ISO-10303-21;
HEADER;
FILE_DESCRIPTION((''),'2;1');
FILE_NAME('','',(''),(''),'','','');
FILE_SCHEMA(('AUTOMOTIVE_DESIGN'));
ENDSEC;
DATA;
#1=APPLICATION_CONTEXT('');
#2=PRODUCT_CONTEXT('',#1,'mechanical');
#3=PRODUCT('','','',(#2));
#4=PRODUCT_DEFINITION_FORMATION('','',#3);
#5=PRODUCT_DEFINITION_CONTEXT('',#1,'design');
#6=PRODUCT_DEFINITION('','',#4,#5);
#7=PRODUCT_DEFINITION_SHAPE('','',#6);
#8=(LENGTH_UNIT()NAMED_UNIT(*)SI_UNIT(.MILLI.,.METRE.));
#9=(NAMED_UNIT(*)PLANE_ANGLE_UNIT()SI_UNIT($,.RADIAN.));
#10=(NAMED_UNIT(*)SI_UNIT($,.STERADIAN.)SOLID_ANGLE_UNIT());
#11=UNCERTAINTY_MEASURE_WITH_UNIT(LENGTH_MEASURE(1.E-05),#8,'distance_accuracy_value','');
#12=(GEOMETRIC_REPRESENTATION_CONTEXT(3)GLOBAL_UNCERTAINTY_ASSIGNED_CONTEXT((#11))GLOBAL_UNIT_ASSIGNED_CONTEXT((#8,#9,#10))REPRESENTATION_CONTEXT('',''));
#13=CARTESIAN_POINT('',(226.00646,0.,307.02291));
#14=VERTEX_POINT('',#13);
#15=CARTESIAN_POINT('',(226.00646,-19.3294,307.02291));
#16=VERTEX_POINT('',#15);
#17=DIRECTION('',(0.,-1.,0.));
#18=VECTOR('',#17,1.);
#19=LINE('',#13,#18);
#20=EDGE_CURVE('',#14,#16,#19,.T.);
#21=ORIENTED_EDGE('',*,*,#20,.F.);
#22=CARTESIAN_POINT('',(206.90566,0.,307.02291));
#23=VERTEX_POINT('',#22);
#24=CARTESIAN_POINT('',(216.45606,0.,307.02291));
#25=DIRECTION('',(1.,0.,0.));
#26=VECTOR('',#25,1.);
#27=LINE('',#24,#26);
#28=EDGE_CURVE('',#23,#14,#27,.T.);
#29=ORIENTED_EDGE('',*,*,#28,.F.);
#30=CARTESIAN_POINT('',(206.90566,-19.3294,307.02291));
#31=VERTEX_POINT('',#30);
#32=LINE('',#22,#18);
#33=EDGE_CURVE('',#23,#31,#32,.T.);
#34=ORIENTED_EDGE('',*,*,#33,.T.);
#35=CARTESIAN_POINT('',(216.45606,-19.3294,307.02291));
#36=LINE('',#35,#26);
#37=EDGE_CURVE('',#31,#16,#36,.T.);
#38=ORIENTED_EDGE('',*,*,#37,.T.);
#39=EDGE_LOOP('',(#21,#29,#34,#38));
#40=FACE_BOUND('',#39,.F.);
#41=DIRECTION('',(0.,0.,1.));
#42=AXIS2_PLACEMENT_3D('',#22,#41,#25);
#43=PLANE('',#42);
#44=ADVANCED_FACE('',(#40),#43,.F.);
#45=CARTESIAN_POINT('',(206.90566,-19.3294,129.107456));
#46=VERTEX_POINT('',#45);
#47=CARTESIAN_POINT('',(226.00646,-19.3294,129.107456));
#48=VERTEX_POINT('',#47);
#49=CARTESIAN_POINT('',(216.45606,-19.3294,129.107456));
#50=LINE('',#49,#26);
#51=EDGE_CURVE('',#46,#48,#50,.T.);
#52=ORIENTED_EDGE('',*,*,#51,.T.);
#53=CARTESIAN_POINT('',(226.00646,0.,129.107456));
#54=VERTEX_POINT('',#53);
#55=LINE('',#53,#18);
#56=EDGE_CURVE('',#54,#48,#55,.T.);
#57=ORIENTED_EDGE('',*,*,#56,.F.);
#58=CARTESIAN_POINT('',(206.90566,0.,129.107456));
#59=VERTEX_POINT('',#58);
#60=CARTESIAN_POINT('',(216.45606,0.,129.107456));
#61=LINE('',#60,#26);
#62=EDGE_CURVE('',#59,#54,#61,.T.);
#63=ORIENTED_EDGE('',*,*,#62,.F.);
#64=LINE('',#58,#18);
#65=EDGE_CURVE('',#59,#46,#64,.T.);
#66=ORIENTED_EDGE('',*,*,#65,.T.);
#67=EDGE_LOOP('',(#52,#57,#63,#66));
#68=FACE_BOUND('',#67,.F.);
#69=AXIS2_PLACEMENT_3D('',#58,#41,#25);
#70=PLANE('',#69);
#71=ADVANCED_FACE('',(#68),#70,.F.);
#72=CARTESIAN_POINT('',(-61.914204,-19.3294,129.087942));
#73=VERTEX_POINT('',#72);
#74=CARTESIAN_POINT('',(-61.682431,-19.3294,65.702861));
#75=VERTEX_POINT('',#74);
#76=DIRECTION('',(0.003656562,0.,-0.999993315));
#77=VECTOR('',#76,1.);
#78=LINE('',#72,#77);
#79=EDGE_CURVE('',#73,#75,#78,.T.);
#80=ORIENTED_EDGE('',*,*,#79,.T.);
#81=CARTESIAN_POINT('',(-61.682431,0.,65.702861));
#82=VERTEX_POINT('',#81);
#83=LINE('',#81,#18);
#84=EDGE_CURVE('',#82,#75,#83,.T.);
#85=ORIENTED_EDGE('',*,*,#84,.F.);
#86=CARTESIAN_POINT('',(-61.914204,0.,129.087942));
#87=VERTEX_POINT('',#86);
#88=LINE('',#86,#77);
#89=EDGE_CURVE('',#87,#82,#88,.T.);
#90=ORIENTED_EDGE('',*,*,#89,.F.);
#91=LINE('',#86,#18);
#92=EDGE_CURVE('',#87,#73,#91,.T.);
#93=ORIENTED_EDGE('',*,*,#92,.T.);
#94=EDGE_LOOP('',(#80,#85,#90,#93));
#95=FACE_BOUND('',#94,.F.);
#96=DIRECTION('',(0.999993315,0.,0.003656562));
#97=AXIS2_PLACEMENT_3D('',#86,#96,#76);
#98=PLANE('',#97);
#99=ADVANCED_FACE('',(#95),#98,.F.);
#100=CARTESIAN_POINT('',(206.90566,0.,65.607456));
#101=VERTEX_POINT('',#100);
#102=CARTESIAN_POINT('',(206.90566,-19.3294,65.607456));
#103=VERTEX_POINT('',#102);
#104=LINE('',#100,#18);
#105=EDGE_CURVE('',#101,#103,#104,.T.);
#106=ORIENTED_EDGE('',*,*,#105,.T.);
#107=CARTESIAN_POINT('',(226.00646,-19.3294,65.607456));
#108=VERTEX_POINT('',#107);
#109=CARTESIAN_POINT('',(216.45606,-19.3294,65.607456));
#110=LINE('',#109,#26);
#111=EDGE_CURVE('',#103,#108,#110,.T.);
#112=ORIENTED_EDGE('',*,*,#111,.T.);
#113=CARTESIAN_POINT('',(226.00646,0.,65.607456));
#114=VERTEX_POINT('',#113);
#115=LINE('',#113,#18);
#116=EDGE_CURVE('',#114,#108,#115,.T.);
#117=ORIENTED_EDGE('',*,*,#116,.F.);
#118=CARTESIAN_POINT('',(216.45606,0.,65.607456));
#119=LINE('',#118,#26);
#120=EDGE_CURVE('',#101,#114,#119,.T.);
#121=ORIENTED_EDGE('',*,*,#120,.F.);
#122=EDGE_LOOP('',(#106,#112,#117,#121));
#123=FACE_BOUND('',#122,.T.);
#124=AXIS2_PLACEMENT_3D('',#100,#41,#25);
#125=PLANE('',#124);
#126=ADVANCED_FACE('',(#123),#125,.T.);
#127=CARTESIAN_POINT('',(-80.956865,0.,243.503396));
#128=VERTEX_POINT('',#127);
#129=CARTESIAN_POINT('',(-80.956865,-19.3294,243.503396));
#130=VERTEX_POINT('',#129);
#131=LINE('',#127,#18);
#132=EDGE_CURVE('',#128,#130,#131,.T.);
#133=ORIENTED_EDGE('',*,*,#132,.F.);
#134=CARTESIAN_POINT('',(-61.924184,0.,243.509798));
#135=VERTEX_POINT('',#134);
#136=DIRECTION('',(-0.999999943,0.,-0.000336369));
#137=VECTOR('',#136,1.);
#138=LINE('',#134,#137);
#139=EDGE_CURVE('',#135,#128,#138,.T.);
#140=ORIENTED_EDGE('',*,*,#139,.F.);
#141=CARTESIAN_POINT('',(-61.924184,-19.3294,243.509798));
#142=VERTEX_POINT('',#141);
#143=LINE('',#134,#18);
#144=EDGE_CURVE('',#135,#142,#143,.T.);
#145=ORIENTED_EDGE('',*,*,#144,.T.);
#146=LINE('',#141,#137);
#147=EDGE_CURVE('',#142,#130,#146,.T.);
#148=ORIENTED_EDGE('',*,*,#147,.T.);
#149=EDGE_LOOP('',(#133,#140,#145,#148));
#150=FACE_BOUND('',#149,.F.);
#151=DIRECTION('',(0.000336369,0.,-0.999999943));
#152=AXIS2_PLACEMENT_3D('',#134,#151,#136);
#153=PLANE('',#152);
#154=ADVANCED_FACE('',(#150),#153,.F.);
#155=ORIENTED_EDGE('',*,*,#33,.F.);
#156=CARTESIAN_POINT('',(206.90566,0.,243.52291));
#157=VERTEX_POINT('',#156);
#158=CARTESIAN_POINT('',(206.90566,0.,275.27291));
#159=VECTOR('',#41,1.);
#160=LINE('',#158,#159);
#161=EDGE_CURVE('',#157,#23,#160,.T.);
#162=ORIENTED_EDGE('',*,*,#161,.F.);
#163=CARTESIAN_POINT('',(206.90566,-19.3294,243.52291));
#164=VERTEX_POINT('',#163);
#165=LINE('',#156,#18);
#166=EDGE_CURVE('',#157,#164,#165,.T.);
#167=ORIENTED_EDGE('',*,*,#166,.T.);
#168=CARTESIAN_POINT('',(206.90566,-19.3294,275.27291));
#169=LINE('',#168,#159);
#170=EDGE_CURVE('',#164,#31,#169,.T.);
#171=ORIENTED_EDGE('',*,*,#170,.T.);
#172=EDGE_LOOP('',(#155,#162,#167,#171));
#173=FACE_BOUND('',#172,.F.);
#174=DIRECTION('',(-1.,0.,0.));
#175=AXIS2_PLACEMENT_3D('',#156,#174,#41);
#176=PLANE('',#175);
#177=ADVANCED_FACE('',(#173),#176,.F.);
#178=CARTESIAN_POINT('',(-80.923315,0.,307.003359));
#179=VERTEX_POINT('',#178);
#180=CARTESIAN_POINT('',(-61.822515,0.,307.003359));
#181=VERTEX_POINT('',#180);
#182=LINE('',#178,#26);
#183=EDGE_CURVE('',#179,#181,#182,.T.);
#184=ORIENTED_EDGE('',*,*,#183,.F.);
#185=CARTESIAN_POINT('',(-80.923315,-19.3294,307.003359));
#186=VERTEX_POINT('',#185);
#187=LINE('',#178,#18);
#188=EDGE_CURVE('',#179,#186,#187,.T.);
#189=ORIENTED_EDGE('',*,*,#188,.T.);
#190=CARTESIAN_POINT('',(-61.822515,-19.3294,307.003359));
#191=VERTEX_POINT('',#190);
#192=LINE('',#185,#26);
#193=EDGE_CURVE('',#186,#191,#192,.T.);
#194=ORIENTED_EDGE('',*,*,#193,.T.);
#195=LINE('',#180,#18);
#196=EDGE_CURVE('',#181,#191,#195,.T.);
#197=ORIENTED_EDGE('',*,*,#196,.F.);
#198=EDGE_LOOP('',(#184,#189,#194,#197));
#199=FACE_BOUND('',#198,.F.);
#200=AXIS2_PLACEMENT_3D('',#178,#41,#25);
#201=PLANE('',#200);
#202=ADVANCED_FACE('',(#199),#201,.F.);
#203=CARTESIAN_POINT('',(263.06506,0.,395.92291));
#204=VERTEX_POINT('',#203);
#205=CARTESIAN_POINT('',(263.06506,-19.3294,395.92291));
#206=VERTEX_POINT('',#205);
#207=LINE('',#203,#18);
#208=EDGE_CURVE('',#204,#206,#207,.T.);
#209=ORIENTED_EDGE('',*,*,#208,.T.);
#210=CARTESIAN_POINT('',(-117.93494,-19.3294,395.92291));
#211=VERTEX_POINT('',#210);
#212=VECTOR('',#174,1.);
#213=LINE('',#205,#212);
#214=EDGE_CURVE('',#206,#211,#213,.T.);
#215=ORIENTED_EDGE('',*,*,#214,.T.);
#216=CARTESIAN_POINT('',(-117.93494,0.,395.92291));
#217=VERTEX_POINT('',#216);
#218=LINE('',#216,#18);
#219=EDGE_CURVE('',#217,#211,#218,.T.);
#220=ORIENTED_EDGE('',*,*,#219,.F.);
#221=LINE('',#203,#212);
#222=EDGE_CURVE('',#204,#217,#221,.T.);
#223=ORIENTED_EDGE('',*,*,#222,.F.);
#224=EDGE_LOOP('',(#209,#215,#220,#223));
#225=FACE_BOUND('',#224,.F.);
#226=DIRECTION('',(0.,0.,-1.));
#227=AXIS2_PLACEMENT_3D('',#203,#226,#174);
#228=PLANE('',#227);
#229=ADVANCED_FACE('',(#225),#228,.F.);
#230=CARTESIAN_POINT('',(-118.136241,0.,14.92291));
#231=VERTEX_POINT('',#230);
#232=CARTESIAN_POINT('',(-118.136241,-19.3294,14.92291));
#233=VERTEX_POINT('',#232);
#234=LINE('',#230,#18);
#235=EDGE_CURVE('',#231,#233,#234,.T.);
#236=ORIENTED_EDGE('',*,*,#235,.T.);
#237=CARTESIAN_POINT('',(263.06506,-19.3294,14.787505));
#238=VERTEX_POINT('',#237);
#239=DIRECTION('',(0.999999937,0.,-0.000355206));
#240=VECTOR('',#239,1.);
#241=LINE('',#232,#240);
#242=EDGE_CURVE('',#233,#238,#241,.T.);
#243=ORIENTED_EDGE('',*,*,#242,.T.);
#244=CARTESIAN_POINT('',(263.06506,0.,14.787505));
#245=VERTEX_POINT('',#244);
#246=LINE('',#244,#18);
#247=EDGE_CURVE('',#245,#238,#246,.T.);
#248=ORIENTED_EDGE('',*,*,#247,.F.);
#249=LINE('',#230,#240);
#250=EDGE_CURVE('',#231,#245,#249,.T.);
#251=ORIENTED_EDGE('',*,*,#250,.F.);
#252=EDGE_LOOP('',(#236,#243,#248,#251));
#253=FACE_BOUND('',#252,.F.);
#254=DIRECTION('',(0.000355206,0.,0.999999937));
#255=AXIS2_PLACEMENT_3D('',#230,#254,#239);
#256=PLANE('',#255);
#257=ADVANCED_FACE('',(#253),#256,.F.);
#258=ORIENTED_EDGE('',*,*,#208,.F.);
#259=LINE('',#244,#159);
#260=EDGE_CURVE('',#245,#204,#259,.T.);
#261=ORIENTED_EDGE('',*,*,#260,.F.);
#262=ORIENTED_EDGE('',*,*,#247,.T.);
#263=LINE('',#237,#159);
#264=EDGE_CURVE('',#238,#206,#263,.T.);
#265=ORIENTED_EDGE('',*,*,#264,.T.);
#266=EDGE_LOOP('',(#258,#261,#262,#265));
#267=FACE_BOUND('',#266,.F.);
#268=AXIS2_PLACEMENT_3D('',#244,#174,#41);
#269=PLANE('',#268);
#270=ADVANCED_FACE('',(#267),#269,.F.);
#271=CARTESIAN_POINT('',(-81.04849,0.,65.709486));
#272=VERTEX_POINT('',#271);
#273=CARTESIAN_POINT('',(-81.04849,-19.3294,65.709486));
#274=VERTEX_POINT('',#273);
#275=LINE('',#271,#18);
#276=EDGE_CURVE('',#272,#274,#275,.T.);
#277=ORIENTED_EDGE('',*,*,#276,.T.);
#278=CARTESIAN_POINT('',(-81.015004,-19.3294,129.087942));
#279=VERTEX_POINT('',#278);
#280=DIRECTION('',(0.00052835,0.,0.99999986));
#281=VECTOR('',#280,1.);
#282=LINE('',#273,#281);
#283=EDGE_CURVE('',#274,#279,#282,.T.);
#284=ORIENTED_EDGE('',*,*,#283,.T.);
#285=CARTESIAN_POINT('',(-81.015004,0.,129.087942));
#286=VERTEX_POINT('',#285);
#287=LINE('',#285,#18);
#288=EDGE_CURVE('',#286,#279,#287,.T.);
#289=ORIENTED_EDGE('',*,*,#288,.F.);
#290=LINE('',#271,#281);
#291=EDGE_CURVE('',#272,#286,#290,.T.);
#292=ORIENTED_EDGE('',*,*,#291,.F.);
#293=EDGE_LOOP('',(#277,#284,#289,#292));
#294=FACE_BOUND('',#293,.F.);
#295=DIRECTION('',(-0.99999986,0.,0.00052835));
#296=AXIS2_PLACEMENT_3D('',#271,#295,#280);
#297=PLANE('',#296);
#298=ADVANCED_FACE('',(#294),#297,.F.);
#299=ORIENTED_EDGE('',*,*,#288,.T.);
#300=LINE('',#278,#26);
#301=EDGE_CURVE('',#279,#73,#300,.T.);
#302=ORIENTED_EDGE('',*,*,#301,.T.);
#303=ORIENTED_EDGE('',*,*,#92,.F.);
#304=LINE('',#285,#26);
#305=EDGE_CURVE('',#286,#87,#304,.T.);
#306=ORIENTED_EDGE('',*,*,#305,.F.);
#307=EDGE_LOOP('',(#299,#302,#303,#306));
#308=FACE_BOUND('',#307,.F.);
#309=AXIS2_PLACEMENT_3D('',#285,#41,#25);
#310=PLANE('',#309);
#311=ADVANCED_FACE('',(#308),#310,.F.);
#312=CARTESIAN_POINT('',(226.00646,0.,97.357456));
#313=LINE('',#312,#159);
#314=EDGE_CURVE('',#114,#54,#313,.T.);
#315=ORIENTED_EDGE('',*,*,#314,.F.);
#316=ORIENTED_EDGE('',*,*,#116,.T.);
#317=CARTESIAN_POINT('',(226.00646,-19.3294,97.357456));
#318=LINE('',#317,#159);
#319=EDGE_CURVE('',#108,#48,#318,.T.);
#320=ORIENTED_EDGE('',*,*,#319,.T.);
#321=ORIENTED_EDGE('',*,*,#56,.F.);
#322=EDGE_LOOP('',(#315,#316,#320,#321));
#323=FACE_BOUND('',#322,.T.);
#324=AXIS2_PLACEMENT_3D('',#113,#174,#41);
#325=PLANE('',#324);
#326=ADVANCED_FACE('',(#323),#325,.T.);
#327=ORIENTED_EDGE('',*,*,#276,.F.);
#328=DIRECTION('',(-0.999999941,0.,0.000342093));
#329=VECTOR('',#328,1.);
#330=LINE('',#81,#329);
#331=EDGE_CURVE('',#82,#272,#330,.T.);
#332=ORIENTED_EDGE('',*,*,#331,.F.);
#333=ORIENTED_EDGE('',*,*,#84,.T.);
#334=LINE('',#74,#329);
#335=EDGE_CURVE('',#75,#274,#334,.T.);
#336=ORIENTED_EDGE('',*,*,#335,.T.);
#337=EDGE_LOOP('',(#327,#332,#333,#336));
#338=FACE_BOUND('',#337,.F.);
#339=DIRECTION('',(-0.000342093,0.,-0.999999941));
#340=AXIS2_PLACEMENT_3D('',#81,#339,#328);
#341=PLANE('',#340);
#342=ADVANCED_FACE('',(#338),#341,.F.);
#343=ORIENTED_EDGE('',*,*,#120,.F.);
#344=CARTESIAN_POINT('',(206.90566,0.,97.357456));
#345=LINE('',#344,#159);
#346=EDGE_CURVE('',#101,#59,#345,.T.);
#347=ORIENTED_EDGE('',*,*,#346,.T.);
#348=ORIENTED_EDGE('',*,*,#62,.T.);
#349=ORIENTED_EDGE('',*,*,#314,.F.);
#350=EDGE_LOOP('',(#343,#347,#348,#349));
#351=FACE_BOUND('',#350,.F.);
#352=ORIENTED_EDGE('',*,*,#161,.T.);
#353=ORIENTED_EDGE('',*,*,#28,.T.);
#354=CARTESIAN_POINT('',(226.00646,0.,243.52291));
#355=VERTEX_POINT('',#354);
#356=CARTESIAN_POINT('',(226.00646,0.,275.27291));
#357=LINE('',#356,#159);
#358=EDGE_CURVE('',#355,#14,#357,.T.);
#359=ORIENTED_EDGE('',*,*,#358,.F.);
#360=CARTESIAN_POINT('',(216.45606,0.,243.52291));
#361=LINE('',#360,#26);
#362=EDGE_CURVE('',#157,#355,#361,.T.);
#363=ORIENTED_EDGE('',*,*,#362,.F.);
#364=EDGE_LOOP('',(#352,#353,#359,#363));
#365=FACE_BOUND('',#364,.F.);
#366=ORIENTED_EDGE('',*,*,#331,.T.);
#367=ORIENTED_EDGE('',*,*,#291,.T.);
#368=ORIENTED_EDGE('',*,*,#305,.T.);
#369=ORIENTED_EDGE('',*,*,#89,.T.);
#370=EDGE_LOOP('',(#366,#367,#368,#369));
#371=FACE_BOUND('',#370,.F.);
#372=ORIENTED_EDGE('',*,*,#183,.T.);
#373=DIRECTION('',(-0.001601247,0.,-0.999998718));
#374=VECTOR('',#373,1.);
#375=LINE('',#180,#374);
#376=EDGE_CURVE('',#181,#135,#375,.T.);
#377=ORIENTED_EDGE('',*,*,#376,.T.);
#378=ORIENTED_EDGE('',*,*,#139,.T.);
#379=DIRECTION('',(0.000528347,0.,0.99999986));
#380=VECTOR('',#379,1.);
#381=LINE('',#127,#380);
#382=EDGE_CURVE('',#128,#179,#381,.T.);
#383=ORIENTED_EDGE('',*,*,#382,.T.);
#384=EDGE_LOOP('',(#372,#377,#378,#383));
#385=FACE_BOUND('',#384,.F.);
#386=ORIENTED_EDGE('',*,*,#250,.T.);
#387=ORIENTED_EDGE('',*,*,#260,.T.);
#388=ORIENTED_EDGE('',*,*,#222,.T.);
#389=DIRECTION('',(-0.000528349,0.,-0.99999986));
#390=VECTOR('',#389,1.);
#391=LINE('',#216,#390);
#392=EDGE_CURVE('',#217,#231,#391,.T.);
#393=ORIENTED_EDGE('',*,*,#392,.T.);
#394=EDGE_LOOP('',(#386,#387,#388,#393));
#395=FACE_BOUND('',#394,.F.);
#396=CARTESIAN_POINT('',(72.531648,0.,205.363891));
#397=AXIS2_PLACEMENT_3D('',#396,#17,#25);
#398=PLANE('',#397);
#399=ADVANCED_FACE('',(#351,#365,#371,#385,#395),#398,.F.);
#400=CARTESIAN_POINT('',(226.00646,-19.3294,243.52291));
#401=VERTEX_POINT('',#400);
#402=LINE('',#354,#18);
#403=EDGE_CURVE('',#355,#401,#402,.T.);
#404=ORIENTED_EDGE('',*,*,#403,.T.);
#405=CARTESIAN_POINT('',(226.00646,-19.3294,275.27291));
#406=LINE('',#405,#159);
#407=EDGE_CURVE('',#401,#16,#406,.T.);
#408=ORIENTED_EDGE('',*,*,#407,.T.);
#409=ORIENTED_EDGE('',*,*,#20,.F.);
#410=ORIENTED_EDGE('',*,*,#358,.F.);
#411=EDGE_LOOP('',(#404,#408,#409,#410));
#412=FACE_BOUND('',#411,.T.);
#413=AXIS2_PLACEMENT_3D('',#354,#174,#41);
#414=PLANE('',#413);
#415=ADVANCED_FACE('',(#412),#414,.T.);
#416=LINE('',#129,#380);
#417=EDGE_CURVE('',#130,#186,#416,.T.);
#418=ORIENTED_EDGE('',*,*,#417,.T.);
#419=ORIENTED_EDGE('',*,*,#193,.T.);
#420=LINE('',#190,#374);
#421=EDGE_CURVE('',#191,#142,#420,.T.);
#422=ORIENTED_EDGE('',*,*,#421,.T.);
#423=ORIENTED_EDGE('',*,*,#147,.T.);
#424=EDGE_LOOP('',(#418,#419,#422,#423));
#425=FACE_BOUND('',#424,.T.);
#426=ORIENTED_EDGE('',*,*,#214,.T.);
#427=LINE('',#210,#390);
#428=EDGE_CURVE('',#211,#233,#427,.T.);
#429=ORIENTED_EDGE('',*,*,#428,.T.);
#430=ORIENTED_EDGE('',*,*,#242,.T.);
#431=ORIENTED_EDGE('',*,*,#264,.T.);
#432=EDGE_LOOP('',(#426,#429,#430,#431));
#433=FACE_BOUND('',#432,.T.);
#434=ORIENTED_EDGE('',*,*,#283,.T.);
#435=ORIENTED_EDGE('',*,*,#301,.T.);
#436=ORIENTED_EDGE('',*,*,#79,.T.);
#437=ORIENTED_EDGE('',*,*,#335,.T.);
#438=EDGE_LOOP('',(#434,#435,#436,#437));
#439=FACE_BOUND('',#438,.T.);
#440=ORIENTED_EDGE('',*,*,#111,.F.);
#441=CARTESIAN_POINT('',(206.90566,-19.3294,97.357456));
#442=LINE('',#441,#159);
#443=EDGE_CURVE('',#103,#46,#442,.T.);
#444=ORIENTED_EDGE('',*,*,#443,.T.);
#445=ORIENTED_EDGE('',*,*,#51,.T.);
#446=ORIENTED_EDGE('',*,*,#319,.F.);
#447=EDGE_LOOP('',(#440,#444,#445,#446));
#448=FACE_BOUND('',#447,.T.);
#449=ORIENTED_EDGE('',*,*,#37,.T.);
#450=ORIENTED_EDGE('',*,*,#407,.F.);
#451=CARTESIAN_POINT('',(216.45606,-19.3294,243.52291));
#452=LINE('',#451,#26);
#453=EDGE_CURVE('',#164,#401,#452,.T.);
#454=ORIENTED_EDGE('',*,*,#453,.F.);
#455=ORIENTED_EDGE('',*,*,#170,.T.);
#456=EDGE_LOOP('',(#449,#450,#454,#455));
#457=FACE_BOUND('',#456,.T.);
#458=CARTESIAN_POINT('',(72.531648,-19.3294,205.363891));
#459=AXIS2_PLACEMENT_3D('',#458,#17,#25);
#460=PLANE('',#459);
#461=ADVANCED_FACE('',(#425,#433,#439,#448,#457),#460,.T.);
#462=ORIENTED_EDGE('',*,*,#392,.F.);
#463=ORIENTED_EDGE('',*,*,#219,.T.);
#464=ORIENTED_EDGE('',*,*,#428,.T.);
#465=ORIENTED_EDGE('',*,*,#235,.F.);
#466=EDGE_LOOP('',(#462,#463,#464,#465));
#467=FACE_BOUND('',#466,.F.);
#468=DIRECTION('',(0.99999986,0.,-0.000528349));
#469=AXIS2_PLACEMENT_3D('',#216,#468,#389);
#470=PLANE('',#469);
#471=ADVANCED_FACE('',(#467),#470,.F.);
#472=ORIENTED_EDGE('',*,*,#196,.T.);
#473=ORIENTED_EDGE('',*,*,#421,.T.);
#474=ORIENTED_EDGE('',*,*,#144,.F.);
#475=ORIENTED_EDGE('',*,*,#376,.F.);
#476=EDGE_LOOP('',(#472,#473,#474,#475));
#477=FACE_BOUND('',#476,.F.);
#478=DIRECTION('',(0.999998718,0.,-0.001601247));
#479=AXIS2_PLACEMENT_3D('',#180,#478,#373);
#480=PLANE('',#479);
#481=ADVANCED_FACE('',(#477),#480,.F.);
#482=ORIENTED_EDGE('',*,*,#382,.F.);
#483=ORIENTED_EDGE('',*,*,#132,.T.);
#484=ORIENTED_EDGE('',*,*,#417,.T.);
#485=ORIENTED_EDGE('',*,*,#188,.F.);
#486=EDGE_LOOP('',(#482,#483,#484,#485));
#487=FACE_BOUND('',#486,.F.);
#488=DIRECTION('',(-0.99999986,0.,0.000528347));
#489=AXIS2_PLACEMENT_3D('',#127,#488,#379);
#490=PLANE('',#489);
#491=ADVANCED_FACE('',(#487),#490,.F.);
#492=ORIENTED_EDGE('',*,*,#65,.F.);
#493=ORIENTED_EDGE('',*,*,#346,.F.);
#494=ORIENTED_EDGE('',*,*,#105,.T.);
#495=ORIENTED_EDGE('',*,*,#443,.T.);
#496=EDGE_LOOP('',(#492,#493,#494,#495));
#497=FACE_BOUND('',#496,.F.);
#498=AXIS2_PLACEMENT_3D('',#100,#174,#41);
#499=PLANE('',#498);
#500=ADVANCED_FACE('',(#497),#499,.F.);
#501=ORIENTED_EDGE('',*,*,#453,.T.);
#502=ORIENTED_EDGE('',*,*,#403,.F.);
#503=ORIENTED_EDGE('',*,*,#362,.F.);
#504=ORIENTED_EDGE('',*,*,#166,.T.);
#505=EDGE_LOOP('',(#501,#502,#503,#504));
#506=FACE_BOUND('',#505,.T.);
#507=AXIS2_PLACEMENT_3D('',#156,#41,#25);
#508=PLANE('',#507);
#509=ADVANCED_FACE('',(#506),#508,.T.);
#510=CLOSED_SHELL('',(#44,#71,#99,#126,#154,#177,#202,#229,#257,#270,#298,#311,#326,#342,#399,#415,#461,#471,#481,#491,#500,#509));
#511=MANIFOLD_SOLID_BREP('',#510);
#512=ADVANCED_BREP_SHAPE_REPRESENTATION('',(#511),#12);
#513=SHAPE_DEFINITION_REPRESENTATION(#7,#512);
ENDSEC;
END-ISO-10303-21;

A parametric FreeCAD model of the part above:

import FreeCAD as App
import Part
import Sketcher
from FreeCAD import Vector
Q = App.Units.Quantity


def add_polygon(sketch, points):
    """Adds a closed chain of lines whose ends are joined by coincident constraints."""
    first, n = sketch.GeometryCount, len(points)
    for a, b in zip(points, points[1:] + points[:1]):
        sketch.addGeometry(Part.LineSegment(App.Vector(*a, 0), App.Vector(*b, 0)), False)
    for i in range(n):
        sketch.addConstraint(Sketcher.Constraint("Coincident", first + i, 2, first + (i + 1) % n, 1))

doc = App.newDocument("Part")
body = doc.addObject("PartDesign::Body", "Body")

sketch1 = body.newObject("Sketcher::SketchObject", "Sketch")
sketch1.AttachmentSupport = (doc.getObject("XZ_Plane"), [""])
sketch1.MapMode = "FlatFace"
add_polygon(sketch1, [(263, 396), (-118, 396), (-118, 15), (263, 15)])
add_polygon(sketch1, [(-81, 66), (-81, 129), (-62, 129), (-62, 66)])
add_polygon(sketch1, [(226, 66), (207, 66), (207, 129), (226, 129)])
add_polygon(sketch1, [(-62, 244), (-81, 244), (-81, 307), (-62, 307)])
add_polygon(sketch1, [(226, 244), (207, 244), (207, 307), (226, 307)])
sketch1.addConstraint([
    Sketcher.Constraint("Horizontal", 0),
    Sketcher.Constraint("Vertical", 3),
    Sketcher.Constraint("Horizontal", 5),
    Sketcher.Constraint("Horizontal", 8),
    Sketcher.Constraint("Vertical", 9),
    Sketcher.Constraint("Horizontal", 10),
    Sketcher.Constraint("Vertical", 11),
    Sketcher.Constraint("Horizontal", 14),
    Sketcher.Constraint("Horizontal", 16),
    Sketcher.Constraint("Vertical", 17),
    Sketcher.Constraint("Horizontal", 18),
    Sketcher.Constraint("Vertical", 19),
    Sketcher.Constraint("Parallel", 1, 4),
    Sketcher.Constraint("Parallel", 4, 13),
    Sketcher.Constraint("Vertical", 9, 2, 16, 2),
    Sketcher.Constraint("Vertical", 11, 2, 18, 2),
    Sketcher.Constraint("Equal", 5, 8),
    Sketcher.Constraint("Equal", 10, 14),
    Sketcher.Constraint("Equal", 11, 17),
    Sketcher.Constraint("DistanceX", 0, 2, 0, 1, Q("15 in")),
    Sketcher.Constraint("DistanceY", 9, 1, 9, 2, Q("2.5 in")),
    Sketcher.Constraint("DistanceY", 1, 2, 0, 2, Q("15 in")),
    Sketcher.Constraint("DistanceY", 16, 2, 3, 2, Q("6 in")),
    Sketcher.Constraint("DistanceX", 5, 1, 5, 2, Q("0.752 in")),
    Sketcher.Constraint("DistanceY", -1, 1, 15, 2, Q("9.5869999 in")),
    Sketcher.Constraint("DistanceX", 8, 2, 2, 2, Q("2.211 in")),
    Sketcher.Constraint("DistanceX", 1, 2, 0, 2, 0.201301),
    Sketcher.Constraint("DistanceY", 12, 2, 15, 2, 0.006402),
    Sketcher.Constraint("Distance", 7, 19.36606),
    Sketcher.Constraint("Distance", 13, 63.499972),
    Sketcher.Constraint("DistanceY", 3, 1, 3, 2, 381.135405),
    Sketcher.Constraint("DistanceX", 0, 2, -1, 1, 117.93494),
    Sketcher.Constraint("DistanceY", -1, 1, 0, 2, 395.92291),
    Sketcher.Constraint("DistanceY", -1, 1, 4, 2, 129.087942),
    Sketcher.Constraint("DistanceX", 6, 2, -1, 1, 61.682431),
    Sketcher.Constraint("DistanceY", -1, 1, 6, 2, 65.702861),
    Sketcher.Constraint("DistanceY", 2, 2, 8, 2, 50.819951),
    Sketcher.Constraint("DistanceY", 8, 2, 7, 2, 0.10203),
    Sketcher.Constraint("DistanceX", 4, 2, 12, 2, 0.058139),
    Sketcher.Constraint("DistanceX", 12, 2, 15, 2, 19.032681),
])
pad1 = body.newObject("PartDesign::Pad", "Pad")
pad1.Profile = sketch1
pad1.Length = Q("0.761 in")

doc.recompute()
